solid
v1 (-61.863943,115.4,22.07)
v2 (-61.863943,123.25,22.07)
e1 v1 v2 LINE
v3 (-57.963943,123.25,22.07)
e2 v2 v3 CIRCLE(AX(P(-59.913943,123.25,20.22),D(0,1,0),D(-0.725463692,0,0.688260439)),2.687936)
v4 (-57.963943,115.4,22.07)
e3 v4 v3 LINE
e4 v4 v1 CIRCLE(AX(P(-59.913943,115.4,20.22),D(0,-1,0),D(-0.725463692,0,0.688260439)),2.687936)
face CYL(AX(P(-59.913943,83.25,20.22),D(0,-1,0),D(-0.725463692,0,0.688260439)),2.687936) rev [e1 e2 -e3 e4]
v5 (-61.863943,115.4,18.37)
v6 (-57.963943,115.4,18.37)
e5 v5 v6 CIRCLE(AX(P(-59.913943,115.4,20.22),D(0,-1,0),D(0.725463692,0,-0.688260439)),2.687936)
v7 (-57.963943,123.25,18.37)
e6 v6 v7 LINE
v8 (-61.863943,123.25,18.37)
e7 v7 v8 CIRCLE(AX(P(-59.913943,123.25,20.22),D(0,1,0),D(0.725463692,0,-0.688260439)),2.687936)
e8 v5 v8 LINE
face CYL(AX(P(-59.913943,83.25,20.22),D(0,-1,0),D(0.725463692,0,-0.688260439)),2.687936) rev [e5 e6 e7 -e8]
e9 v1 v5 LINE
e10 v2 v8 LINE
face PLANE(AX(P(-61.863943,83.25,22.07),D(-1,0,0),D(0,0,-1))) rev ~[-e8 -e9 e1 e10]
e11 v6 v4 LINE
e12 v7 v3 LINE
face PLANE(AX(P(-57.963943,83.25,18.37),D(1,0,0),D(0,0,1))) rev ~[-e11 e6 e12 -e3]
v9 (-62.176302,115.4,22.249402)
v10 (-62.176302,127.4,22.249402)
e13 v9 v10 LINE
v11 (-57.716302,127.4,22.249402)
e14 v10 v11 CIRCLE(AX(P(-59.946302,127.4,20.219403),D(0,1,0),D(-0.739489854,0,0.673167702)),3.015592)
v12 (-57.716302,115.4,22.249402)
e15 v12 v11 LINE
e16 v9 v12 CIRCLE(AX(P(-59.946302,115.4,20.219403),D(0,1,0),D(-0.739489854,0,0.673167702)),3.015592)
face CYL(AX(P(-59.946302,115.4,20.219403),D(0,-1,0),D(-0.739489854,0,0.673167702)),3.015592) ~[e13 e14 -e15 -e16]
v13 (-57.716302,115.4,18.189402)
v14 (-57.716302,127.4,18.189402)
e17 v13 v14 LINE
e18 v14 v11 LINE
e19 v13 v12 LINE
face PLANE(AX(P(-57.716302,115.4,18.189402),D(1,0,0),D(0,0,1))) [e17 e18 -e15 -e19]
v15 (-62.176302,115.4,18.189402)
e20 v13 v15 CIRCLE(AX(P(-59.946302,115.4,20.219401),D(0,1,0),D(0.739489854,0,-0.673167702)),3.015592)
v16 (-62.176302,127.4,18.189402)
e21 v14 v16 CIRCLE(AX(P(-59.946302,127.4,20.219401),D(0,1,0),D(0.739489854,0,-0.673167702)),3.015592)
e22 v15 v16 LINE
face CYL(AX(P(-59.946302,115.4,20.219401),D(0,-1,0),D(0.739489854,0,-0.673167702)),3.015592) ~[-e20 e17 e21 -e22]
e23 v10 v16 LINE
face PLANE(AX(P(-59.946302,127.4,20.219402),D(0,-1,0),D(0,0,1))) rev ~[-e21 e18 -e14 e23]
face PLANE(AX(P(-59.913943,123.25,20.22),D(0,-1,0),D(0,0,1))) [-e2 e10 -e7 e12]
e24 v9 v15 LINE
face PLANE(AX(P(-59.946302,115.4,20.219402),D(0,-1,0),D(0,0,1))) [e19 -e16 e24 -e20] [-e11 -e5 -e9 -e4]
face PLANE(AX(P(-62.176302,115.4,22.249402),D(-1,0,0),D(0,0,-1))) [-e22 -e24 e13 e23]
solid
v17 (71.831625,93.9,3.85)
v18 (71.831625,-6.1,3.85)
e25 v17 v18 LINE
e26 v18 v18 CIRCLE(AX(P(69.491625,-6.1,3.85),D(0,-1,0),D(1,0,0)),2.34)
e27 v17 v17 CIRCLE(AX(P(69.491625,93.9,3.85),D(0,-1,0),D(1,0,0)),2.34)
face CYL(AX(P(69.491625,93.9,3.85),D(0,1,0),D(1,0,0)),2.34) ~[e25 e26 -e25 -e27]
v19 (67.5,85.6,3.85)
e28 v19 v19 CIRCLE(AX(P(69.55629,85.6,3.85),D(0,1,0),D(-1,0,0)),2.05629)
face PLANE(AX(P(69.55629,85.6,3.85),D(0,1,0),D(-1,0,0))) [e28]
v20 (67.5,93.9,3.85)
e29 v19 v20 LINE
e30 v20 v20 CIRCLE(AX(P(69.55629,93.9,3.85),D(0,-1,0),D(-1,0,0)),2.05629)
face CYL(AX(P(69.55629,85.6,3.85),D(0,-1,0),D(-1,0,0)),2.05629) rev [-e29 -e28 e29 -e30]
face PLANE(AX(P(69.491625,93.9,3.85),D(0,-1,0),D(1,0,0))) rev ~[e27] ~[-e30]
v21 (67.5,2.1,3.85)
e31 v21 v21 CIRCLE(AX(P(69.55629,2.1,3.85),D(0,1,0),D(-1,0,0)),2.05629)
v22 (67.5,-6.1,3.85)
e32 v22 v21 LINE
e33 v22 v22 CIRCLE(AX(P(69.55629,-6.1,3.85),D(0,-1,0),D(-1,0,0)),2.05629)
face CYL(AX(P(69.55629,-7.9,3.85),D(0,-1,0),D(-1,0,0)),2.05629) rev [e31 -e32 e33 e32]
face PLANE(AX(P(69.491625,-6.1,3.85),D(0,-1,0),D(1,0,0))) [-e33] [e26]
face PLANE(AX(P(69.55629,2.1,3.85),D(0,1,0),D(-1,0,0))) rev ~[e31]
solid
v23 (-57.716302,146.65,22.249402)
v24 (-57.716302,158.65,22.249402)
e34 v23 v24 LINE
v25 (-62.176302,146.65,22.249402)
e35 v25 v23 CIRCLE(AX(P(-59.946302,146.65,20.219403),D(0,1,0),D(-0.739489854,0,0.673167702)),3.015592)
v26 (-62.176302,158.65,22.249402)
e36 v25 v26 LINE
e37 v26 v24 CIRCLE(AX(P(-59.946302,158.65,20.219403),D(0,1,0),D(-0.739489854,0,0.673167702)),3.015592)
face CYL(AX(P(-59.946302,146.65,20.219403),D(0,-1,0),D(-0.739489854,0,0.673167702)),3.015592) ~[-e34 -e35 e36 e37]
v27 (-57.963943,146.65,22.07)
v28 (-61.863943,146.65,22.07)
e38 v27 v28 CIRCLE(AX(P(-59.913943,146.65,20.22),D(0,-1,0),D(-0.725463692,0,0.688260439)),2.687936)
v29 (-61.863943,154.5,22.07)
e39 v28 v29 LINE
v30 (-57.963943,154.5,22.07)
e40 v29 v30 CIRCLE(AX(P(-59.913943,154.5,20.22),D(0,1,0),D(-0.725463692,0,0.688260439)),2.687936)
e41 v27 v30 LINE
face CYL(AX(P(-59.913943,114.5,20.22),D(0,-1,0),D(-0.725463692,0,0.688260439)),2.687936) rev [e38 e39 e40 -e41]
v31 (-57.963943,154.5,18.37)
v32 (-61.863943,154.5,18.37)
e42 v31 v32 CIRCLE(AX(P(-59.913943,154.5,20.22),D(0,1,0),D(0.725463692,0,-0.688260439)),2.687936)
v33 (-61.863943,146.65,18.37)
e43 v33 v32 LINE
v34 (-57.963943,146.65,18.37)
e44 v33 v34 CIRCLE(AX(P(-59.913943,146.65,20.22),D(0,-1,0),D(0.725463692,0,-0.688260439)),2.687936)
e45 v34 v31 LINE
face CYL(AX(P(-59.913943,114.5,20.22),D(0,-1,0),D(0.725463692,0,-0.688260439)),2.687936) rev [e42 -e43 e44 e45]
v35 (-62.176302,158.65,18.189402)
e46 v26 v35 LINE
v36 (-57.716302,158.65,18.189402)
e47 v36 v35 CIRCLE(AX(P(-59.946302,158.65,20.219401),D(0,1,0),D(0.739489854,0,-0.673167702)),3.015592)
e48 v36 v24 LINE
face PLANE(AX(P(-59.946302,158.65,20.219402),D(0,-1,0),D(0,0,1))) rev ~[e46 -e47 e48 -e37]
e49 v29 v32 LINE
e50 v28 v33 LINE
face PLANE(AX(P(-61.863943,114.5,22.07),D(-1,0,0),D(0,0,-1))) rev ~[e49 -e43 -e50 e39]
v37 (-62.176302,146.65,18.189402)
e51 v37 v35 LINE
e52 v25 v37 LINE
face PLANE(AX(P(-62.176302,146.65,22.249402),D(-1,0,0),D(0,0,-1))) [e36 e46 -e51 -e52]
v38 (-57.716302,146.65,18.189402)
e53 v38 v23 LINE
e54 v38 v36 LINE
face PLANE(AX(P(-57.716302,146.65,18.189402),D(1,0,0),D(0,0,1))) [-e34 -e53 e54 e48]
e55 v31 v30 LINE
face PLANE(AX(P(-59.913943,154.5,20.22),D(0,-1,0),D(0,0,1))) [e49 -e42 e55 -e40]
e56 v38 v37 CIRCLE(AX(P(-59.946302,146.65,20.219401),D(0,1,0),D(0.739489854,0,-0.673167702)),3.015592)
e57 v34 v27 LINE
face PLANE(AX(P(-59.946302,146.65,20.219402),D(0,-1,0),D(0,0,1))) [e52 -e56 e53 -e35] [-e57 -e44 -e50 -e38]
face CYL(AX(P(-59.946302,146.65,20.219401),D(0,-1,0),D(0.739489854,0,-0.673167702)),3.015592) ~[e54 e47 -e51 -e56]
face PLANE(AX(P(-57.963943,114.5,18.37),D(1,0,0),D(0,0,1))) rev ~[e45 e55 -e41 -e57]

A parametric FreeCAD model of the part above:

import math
import FreeCAD as App
import Part
import Sketcher

V = App.Vector

doc = App.newDocument("Part")
body = doc.addObject("PartDesign::Body", "Body")

sketch1 = body.newObject("Sketcher::SketchObject", "Sketch")
sketch1.AttachmentSupport = (doc.getObject("XZ_Plane"), [""])
sketch1.MapMode = "FlatFace"
sketch1.AttachmentOffset = App.Placement(V(0, 0, -93.9), App.Rotation())
sketch1.addGeometry(Part.Circle(V(69.6, 3.9, 0), V(0, 0, 1), 2.1), False)
sketch1.addConstraint(Sketcher.Constraint("Diameter", 0, 4.11258))
sketch1.addConstraint(Sketcher.Constraint("DistanceY", -1, 1, 0, 3, 3.85))
sketch1.addConstraint(Sketcher.Constraint("DistanceX", -1, 1, 0, 3, 69.55629))
pad1 = body.newObject("PartDesign::Pad", "Pad")
pad1.Profile = sketch1
pad1.Length = 10
pad1.Reversed = True
body2 = doc.addObject("PartDesign::Body", "Body001")
doc.recompute()

body.Placement = App.Placement(V(0, -8.3, 0), App.Rotation(V(0, 0, 1), 0))
boolean = body2.newObject("PartDesign::Boolean", "Boolean")
boolean.Type = "Fuse"
boolean.addObjects([body])
body3 = doc.addObject("PartDesign::Body", "Body002")

sketch2 = body3.newObject("Sketcher::SketchObject", "Sketch001")
sketch2.AttachmentSupport = (doc.getObject("XZ_Plane002"), [""])
sketch2.MapMode = "FlatFace"
sketch2.AttachmentOffset = App.Placement(V(0, 0, -93.9), App.Rotation())
sketch2.addGeometry(Part.Circle(V(69.6, 3.9, 0), V(0, 0, 1), 2.1), False)
sketch2.addConstraint(Sketcher.Constraint("Diameter", 0, 4.11258))
sketch2.addConstraint(Sketcher.Constraint("DistanceY", -1, 1, 0, 3, 3.85))
sketch2.addConstraint(Sketcher.Constraint("DistanceX", -1, 1, 0, 3, 69.55629))
pad2 = body3.newObject("PartDesign::Pad", "Pad001")
pad2.Profile = sketch2
pad2.Length = 10
pad2.Reversed = True
body4 = doc.addObject("PartDesign::Body", "Body003")
doc.recompute()

body3.Placement = App.Placement(V(0, -101.8, 0), App.Rotation(V(0, 0, 1), 0))
boolean2 = body4.newObject("PartDesign::Boolean", "Boolean001")
boolean2.Type = "Fuse"
boolean2.addObjects([body3])
body5 = doc.addObject("PartDesign::Body", "Body004")

sketch3 = body5.newObject("Sketcher::SketchObject", "Sketch002")
sketch3.AttachmentSupport = (doc.getObject("YZ_Plane004"), [""])
sketch3.MapMode = "FlatFace"
sketch3.AttachmentOffset = App.Placement(V(0, 0, -101), App.Rotation())
sketch3.addGeometry(Part.Circle(V(28, 20, 0), V(0, 0, 1), 2.3), False)
sketch3.addConstraint(Sketcher.Constraint("Diameter", 0, 4.68))
sketch3.addConstraint(Sketcher.Constraint("DistanceY", -1, 1, 0, 3, 20.0))
sketch3.addConstraint(Sketcher.Constraint("DistanceX", -1, 1, 0, 3, 28.008375))
pad3 = body5.newObject("PartDesign::Pad", "Pad002")
pad3.Profile = sketch3
pad3.Length = 100
pad3.Reversed = True
body6 = doc.addObject("PartDesign::Body", "Body005")
doc.recompute()

body5.Placement = App.Placement(V(97.5, 194.9, -16.15), App.Rotation(V(0, 0, 1), 90))
boolean3 = body6.newObject("PartDesign::Boolean", "Boolean002")
boolean3.Type = "Fuse"
boolean3.addObjects([body5])
doc.recompute()

boolean4 = body6.newObject("PartDesign::Boolean", "Boolean003")
boolean4.Type = "Cut"
boolean4.addObjects([body4])
doc.recompute()

boolean5 = body6.newObject("PartDesign::Boolean", "Boolean004")
boolean5.Type = "Cut"
boolean5.addObjects([body2])
body7 = doc.addObject("PartDesign::Body", "Body006")

sketch4 = body7.newObject("Sketcher::SketchObject", "Sketch003")
sketch4.AttachmentSupport = (doc.getObject("XZ_Plane006"), [""])
sketch4.MapMode = "FlatFace"
sketch4.AttachmentOffset = App.Placement(V(0, 0, 17.4), App.Rotation())
sketch4.addGeometry(Part.LineSegment(V(-1.9, 2, 0), V(1.9, 2, 0)), False)
sketch4.addGeometry(Part.ArcOfCircle(Part.Circle(V(0, 0.1, 0), V(0, 0, 1), 2.7), math.radians(-47), math.radians(47)), False)
sketch4.addGeometry(Part.LineSegment(V(1.9, -1.9, 0), V(-1.9, -1.9, 0)), False)
sketch4.addGeometry(Part.ArcOfCircle(Part.Circle(V(0, 0.1, 0), V(0, 0, 1), 2.7), math.radians(133), math.radians(227)), False)
sketch4.addConstraint(Sketcher.Constraint("Coincident", 0, 2, 1, 2))
sketch4.addConstraint(Sketcher.Constraint("Coincident", 1, 1, 2, 1))
sketch4.addConstraint(Sketcher.Constraint("Coincident", 2, 2, 3, 2))
sketch4.addConstraint(Sketcher.Constraint("Coincident", 3, 1, 0, 1))
sketch4.addConstraint(Sketcher.Constraint("Horizontal", 0))
sketch4.addConstraint(Sketcher.Constraint("Horizontal", 2))
sketch4.addConstraint(Sketcher.Constraint("Coincident", 3, 3, 1, 3))
sketch4.addConstraint(Sketcher.Constraint("Equal", 1, 3))
sketch4.addConstraint(Sketcher.Constraint("PointOnObject", 1, 3, -2))
sketch4.addConstraint(Sketcher.Constraint("Vertical", 0, 2, 1, 1))
sketch4.addConstraint(Sketcher.Constraint("DistanceX", 0, 1, 0, 2, 3.7))
sketch4.addConstraint(Sketcher.Constraint("DistanceY", 1, 1, 0, 2, 3.9))
sketch4.addConstraint(Sketcher.Constraint("DistanceY", -1, 1, 1, 3, 0.073943))
pad4 = body7.newObject("PartDesign::Pad", "Pad003")
pad4.Profile = sketch4
pad4.Length = 40
pad4.Reversed = True
body8 = doc.addObject("PartDesign::Body", "Body007")
doc.recompute()

body7.Placement = App.Placement(V(-59.84, 131.9, 20.22), App.Rotation(V(0, -1, 0), 90))
boolean6 = body8.newObject("PartDesign::Boolean", "Boolean005")
boolean6.Type = "Fuse"
boolean6.addObjects([body7])
body9 = doc.addObject("PartDesign::Body", "Body008")

sketch5 = body9.newObject("Sketcher::SketchObject", "Sketch004")
sketch5.AttachmentSupport = (doc.getObject("XZ_Plane008"), [""])
sketch5.MapMode = "FlatFace"
sketch5.AttachmentOffset = App.Placement(V(0, 0, 17.4), App.Rotation())
sketch5.addGeometry(Part.LineSegment(V(-2, 2.3, 0), V(2, 2.3, 0)), False)
sketch5.addGeometry(Part.ArcOfCircle(Part.Circle(V(0, 0, 0), V(0, 0, 1), 3), math.radians(-48), math.radians(48)), False)
sketch5.addGeometry(Part.LineSegment(V(2, -2.2, 0), V(-2, -2.2, 0)), False)
sketch5.addGeometry(Part.ArcOfCircle(Part.Circle(V(0, 0, 0), V(0, 0, 1), 3), math.radians(132), math.radians(228)), False)
sketch5.addConstraint(Sketcher.Constraint("Coincident", 0, 2, 1, 2))
sketch5.addConstraint(Sketcher.Constraint("Coincident", 1, 1, 2, 1))
sketch5.addConstraint(Sketcher.Constraint("Coincident", 2, 2, 3, 2))
sketch5.addConstraint(Sketcher.Constraint("Coincident", 3, 1, 0, 1))
sketch5.addConstraint(Sketcher.Constraint("Horizontal", 0))
sketch5.addConstraint(Sketcher.Constraint("Horizontal", 2))
sketch5.addConstraint(Sketcher.Constraint("Coincident", 3, 3, 1, 3))
sketch5.addConstraint(Sketcher.Constraint("Equal", 1, 3))
sketch5.addConstraint(Sketcher.Constraint("PointOnObject", 1, 3, -2))
sketch5.addConstraint(Sketcher.Constraint("Vertical", 0, 2, 1, 1))
sketch5.addConstraint(Sketcher.Constraint("DistanceX", 0, 1, 0, 2, 4.06))
sketch5.addConstraint(Sketcher.Constraint("DistanceY", 1, 3, 0, 2, 2.23))
sketch5.addConstraint(Sketcher.Constraint("DistanceY", -1, 1, 1, 3, 0.021265))
pad5 = body9.newObject("PartDesign::Pad", "Pad004")
pad5.Profile = sketch5
pad5.Length = 12
pad5.Reversed = True
body10 = doc.addObject("PartDesign::Body", "Body009")
doc.recompute()

body9.Placement = App.Placement(V(-59.925037, 164.05, 20.219402), App.Rotation(V(0, -1, 0), 90))
boolean7 = body10.newObject("PartDesign::Boolean", "Boolean006")
boolean7.Type = "Fuse"
boolean7.addObjects([body9])
doc.recompute()

boolean8 = body10.newObject("PartDesign::Boolean", "Boolean007")
boolean8.Type = "Cut"
boolean8.addObjects([body8])
body11 = doc.addObject("PartDesign::Body", "Body010")
doc.recompute()

body10.Placement = App.Placement(V(0, -31.25, 0), App.Rotation(V(0, 0, 1), 0))
boolean9 = body11.newObject("PartDesign::Boolean", "Boolean008")
boolean9.Type = "Fuse"
boolean9.addObjects([body10])
body12 = doc.addObject("PartDesign::Body", "Body011")

sketch6 = body12.newObject("Sketcher::SketchObject", "Sketch005")
sketch6.AttachmentSupport = (doc.getObject("XZ_Plane011"), [""])
sketch6.MapMode = "FlatFace"
sketch6.AttachmentOffset = App.Placement(V(0, 0, 17.4), App.Rotation())
sketch6.addGeometry(Part.LineSegment(V(-1.9, 2, 0), V(1.9, 2, 0)), False)
sketch6.addGeometry(Part.ArcOfCircle(Part.Circle(V(0, 0.1, 0), V(0, 0, 1), 2.7), math.radians(-47), math.radians(47)), False)
sketch6.addGeometry(Part.LineSegment(V(1.9, -1.9, 0), V(-1.9, -1.9, 0)), False)
sketch6.addGeometry(Part.ArcOfCircle(Part.Circle(V(0, 0.1, 0), V(0, 0, 1), 2.7), math.radians(133), math.radians(227)), False)
sketch6.addConstraint(Sketcher.Constraint("Coincident", 0, 2, 1, 2))
sketch6.addConstraint(Sketcher.Constraint("Coincident", 1, 1, 2, 1))
sketch6.addConstraint(Sketcher.Constraint("Coincident", 2, 2, 3, 2))
sketch6.addConstraint(Sketcher.Constraint("Coincident", 3, 1, 0, 1))
sketch6.addConstraint(Sketcher.Constraint("Horizontal", 0))
sketch6.addConstraint(Sketcher.Constraint("Horizontal", 2))
sketch6.addConstraint(Sketcher.Constraint("Coincident", 3, 3, 1, 3))
sketch6.addConstraint(Sketcher.Constraint("Equal", 1, 3))
sketch6.addConstraint(Sketcher.Constraint("PointOnObject", 1, 3, -2))
sketch6.addConstraint(Sketcher.Constraint("Vertical", 0, 2, 1, 1))
sketch6.addConstraint(Sketcher.Constraint("DistanceX", 0, 1, 0, 2, 3.7))
sketch6.addConstraint(Sketcher.Constraint("DistanceY", 1, 1, 0, 2, 3.9))
sketch6.addConstraint(Sketcher.Constraint("DistanceY", -1, 1, 1, 3, 0.073943))
pad6 = body12.newObject("PartDesign::Pad", "Pad005")
pad6.Profile = sketch6
pad6.Length = 40
pad6.Reversed = True
body13 = doc.addObject("PartDesign::Body", "Body012")
doc.recompute()

body12.Placement = App.Placement(V(-59.84, 131.9, 20.22), App.Rotation(V(0, -1, 0), 90))
boolean10 = body13.newObject("PartDesign::Boolean", "Boolean009")
boolean10.Type = "Fuse"
boolean10.addObjects([body12])
body14 = doc.addObject("PartDesign::Body", "Body013")

sketch7 = body14.newObject("Sketcher::SketchObject", "Sketch006")
sketch7.AttachmentSupport = (doc.getObject("XZ_Plane013"), [""])
sketch7.MapMode = "FlatFace"
sketch7.AttachmentOffset = App.Placement(V(0, 0, 17.4), App.Rotation())
sketch7.addGeometry(Part.LineSegment(V(-2, 2.3, 0), V(2, 2.3, 0)), False)
sketch7.addGeometry(Part.ArcOfCircle(Part.Circle(V(0, 0, 0), V(0, 0, 1), 3), math.radians(-48), math.radians(48)), False)
sketch7.addGeometry(Part.LineSegment(V(2, -2.2, 0), V(-2, -2.2, 0)), False)
sketch7.addGeometry(Part.ArcOfCircle(Part.Circle(V(0, 0, 0), V(0, 0, 1), 3), math.radians(132), math.radians(228)), False)
sketch7.addConstraint(Sketcher.Constraint("Coincident", 0, 2, 1, 2))
sketch7.addConstraint(Sketcher.Constraint("Coincident", 1, 1, 2, 1))
sketch7.addConstraint(Sketcher.Constraint("Coincident", 2, 2, 3, 2))
sketch7.addConstraint(Sketcher.Constraint("Coincident", 3, 1, 0, 1))
sketch7.addConstraint(Sketcher.Constraint("Horizontal", 0))
sketch7.addConstraint(Sketcher.Constraint("Horizontal", 2))
sketch7.addConstraint(Sketcher.Constraint("Coincident", 3, 3, 1, 3))
sketch7.addConstraint(Sketcher.Constraint("Equal", 1, 3))
sketch7.addConstraint(Sketcher.Constraint("PointOnObject", 1, 3, -2))
sketch7.addConstraint(Sketcher.Constraint("Vertical", 0, 2, 1, 1))
sketch7.addConstraint(Sketcher.Constraint("DistanceX", 0, 1, 0, 2, 4.06))
sketch7.addConstraint(Sketcher.Constraint("DistanceY", 1, 3, 0, 2, 2.23))
sketch7.addConstraint(Sketcher.Constraint("DistanceY", -1, 1, 1, 3, 0.021265))
pad7 = body14.newObject("PartDesign::Pad", "Pad006")
pad7.Profile = sketch7
pad7.Length = 12
pad7.Reversed = True
body15 = doc.addObject("PartDesign::Body", "Body014")
doc.recompute()

body14.Placement = App.Placement(V(-59.925037, 164.05, 20.219402), App.Rotation(V(0, -1, 0), 90))
boolean11 = body15.newObject("PartDesign::Boolean", "Boolean010")
boolean11.Type = "Fuse"
boolean11.addObjects([body14])
doc.recompute()

boolean12 = body15.newObject("PartDesign::Boolean", "Boolean011")
boolean12.Type = "Cut"
boolean12.addObjects([body13])

doc.recompute()
